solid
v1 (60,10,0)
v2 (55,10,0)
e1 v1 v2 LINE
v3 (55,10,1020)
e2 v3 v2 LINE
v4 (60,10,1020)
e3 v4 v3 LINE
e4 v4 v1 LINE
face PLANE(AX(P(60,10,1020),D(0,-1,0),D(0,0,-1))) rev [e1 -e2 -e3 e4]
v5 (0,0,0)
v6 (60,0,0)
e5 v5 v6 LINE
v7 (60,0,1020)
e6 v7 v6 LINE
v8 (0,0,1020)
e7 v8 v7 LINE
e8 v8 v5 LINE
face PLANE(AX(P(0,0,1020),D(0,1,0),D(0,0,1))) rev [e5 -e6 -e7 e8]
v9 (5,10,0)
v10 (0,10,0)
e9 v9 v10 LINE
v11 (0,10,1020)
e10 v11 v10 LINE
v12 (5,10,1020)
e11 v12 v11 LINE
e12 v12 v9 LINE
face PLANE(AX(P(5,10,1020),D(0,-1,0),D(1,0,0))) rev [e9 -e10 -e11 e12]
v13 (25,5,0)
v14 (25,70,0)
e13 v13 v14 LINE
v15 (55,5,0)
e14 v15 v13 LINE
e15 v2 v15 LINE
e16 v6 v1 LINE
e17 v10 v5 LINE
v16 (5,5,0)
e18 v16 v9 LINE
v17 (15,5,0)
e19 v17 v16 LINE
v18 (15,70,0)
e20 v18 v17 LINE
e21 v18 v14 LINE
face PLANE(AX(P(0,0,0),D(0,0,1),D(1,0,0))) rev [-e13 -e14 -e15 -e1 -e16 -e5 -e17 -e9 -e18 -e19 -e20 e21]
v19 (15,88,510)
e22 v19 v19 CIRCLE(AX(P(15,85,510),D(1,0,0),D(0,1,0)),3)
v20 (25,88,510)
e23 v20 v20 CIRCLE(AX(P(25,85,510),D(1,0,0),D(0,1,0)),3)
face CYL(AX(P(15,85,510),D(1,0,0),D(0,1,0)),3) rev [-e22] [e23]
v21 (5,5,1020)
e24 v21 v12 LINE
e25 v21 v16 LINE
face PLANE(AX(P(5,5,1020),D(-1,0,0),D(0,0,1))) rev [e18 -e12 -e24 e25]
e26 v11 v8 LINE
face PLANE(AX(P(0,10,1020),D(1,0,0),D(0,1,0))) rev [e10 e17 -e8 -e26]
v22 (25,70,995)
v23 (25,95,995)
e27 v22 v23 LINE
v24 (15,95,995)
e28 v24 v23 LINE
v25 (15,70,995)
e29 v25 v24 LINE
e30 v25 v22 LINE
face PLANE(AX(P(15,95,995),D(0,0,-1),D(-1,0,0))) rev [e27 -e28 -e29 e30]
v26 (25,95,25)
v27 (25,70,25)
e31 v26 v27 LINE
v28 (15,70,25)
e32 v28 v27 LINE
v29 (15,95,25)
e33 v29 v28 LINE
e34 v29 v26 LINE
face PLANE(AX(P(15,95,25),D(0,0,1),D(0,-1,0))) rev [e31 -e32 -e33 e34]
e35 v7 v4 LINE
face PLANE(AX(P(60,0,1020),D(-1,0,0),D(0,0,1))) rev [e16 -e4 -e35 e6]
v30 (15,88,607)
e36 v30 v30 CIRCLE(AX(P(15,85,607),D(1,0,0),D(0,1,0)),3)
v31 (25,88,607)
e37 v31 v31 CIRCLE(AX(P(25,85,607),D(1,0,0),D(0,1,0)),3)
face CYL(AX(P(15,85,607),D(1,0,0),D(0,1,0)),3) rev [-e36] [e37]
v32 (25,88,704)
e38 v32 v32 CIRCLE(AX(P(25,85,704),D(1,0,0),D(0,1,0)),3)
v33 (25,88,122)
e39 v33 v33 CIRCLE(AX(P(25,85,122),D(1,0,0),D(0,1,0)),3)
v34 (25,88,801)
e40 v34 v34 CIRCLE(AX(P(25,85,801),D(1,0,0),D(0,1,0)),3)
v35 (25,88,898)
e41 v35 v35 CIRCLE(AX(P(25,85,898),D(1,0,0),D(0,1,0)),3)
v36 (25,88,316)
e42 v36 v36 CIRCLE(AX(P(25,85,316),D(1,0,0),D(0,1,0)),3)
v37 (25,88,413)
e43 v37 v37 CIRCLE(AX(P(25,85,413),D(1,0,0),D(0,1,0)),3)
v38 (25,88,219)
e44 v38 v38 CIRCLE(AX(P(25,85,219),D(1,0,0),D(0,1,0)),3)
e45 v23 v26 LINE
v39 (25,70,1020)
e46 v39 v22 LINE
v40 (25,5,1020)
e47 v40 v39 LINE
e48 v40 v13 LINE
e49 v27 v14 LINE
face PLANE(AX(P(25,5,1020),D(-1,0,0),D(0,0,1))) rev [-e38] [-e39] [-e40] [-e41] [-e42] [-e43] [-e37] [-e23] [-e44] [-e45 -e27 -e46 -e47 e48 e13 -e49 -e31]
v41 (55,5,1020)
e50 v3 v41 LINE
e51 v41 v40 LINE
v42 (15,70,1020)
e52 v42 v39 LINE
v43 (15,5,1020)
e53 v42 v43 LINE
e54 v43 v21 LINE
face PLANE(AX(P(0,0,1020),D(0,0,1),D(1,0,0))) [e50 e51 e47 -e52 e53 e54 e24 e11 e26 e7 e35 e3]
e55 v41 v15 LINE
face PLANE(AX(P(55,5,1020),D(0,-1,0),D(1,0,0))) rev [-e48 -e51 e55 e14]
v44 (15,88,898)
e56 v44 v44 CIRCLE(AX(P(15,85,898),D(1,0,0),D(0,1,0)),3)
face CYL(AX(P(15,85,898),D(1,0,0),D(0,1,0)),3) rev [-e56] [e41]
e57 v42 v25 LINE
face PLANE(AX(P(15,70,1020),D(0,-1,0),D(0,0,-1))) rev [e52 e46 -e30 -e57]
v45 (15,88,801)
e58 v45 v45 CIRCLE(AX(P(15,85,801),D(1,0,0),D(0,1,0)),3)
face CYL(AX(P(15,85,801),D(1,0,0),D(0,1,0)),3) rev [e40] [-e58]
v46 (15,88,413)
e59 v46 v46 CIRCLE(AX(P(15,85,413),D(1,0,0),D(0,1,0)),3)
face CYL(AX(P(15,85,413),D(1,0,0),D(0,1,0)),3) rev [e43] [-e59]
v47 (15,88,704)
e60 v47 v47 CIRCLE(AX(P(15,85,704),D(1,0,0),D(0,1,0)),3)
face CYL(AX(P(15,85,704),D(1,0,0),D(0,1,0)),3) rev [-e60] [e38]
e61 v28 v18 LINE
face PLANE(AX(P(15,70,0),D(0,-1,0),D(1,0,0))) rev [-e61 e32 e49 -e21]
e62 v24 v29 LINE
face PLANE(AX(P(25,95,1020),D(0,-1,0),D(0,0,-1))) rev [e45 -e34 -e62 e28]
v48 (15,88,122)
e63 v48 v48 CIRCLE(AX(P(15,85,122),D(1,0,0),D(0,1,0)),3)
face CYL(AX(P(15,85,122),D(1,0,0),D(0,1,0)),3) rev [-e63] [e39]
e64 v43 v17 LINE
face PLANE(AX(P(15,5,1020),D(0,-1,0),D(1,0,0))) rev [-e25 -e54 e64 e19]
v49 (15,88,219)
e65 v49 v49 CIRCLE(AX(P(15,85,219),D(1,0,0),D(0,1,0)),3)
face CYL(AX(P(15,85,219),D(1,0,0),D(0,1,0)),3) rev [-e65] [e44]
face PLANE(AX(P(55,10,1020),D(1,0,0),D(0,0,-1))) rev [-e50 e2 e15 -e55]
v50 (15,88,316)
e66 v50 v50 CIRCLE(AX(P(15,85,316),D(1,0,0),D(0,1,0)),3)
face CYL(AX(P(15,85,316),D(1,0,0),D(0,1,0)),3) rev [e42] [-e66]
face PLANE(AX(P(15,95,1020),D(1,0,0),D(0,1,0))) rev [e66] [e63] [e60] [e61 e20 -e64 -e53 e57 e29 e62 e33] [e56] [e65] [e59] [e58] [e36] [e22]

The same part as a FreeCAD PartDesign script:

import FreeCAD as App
import Part
import Sketcher

V = App.Vector
Q = App.Units.Quantity


def add_polygon(sketch, points):
    """Adds a closed chain of lines whose ends are joined by coincident constraints."""
    first, n = sketch.GeometryCount, len(points)
    for a, b in zip(points, points[1:] + points[:1]):
        sketch.addGeometry(Part.LineSegment(App.Vector(*a, 0), App.Vector(*b, 0)), False)
    for i in range(n):
        sketch.addConstraint(Sketcher.Constraint("Coincident", first + i, 2, first + (i + 1) % n, 1))

doc = App.newDocument("Part")
body = doc.addObject("PartDesign::Body", "Body")

sketch1 = doc.addObject("Sketcher::SketchObject", "Sketch")
body.addObject(sketch1)
sketch1.AttachmentSupport = (doc.XY_Plane, [""])
sketch1.MapMode = "FlatFace"
add_polygon(sketch1, [(0, 10), (0, 0), (60, 0), (60, 10), (55, 10), (55, 5), (25, 5), (25, 95), (15, 95), (15, 5), (5, 5), (5, 10)])
sketch1.addConstraint(Sketcher.Constraint("Vertical", 0))
sketch1.addConstraint(Sketcher.Constraint("Horizontal", 1))
sketch1.addConstraint(Sketcher.Constraint("Vertical", 2))
sketch1.addConstraint(Sketcher.Constraint("Horizontal", 3))
sketch1.addConstraint(Sketcher.Constraint("Vertical", 4))
sketch1.addConstraint(Sketcher.Constraint("Horizontal", 5))
sketch1.addConstraint(Sketcher.Constraint("Vertical", 6))
sketch1.addConstraint(Sketcher.Constraint("Horizontal", 7))
sketch1.addConstraint(Sketcher.Constraint("Vertical", 8))
sketch1.addConstraint(Sketcher.Constraint("Horizontal", 9))
sketch1.addConstraint(Sketcher.Constraint("Vertical", 10))
sketch1.addConstraint(Sketcher.Constraint("Horizontal", 11))
sketch1.addConstraint(Sketcher.Constraint("Coincident", 0, 2, -1, 1))
sketch1.addConstraint(Sketcher.Constraint("Horizontal", 5, 2, 8, 2))
sketch1.addConstraint(Sketcher.Constraint("Horizontal", 3, 2, 10, 2))
sketch1.addConstraint(Sketcher.Constraint("Equal", 7, 9))
sketch1.addConstraint(Sketcher.Constraint("Equal", 3, 11))
sketch1.addConstraint(Sketcher.Constraint("Equal", 9, 0))
sketch1.addConstraint(Sketcher.Constraint("Equal", 11, 4))
sketch1.addConstraint(Sketcher.Constraint("DistanceX", 1, 1, 1, 2, Q("60 mm")))
sketch1.addConstraint(Sketcher.Constraint("DistanceX", 3, 2, 3, 1, Q("5 mm")))
sketch1.addConstraint(Sketcher.Constraint("DistanceX", 5, 2, 5, 1, Q("30 mm")))
sketch1.addConstraint(Sketcher.Constraint("DistanceY", 6, 1, 6, 2, Q("90 mm")))
pad1 = doc.addObject("PartDesign::Pad", "Pad")
body.addObject(pad1)
pad1.Profile = sketch1
pad1.Length = 1020

sketch2 = doc.addObject("Sketcher::SketchObject", "Sketch001")
body.addObject(sketch2)
sketch2.AttachmentSupport = (doc.YZ_Plane, [""])
sketch2.MapMode = "FlatFace"
sketch2.AttachmentOffset = App.Placement(V(0, 0, 25), App.Rotation())
add_polygon(sketch2, [(95, 1020), (70, 1020), (70, 995), (95, 995)])
add_polygon(sketch2, [(95, 25), (70, 25), (70, 0), (95, 0)])
sketch2.addConstraint(Sketcher.Constraint("Horizontal", 0))
sketch2.addConstraint(Sketcher.Constraint("Vertical", 1))
sketch2.addConstraint(Sketcher.Constraint("Horizontal", 2))
sketch2.addConstraint(Sketcher.Constraint("Vertical", 3))
sketch2.addConstraint(Sketcher.Constraint("Horizontal", 4))
sketch2.addConstraint(Sketcher.Constraint("Vertical", 5))
sketch2.addConstraint(Sketcher.Constraint("Horizontal", 6))
sketch2.addConstraint(Sketcher.Constraint("Vertical", 7))
sketch2.addConstraint(Sketcher.Constraint("PointOnObject", 5, 2, -1))
sketch2.addConstraint(Sketcher.Constraint("Vertical", 1, 2, 4, 2))
sketch2.addConstraint(Sketcher.Constraint("Vertical", 3, 2, 6, 2))
sketch2.addConstraint(Sketcher.Constraint("Equal", 6, 1))
sketch2.addConstraint(Sketcher.Constraint("Equal", 3, 5))
sketch2.addConstraint(Sketcher.Constraint("DistanceX", 0, 2, 0, 1, Q("25 mm")))
sketch2.addConstraint(Sketcher.Constraint("DistanceX", -1, 1, 0, 2, Q("70 mm")))
sketch2.addConstraint(Sketcher.Constraint("DistanceY", -1, 1, 0, 2, Q("1020 mm")))
pocket1 = doc.addObject("PartDesign::Pocket", "Pocket")
body.addObject(pocket1)
pocket1.Profile = sketch2
pocket1.Length = 10

sketch3 = doc.addObject("Sketcher::SketchObject", "Sketch002")
body.addObject(sketch3)
sketch3.AttachmentSupport = (doc.YZ_Plane, [""])
sketch3.MapMode = "FlatFace"
sketch3.AttachmentOffset = App.Placement(V(0, 0, 25), App.Rotation())
sketch3.addGeometry(Part.Circle(V(85, 898, 0), V(0, 0, 1), 3), False)
sketch3.addConstraint(Sketcher.Constraint("Diameter", 0, Q("6 mm")))
sketch3.addConstraint(Sketcher.Constraint("DistanceX", -1, 1, 0, 3, Q("85 mm")))
sketch3.addConstraint(Sketcher.Constraint("DistanceY", -1, 1, 0, 3, Q("898 mm")))
pocket2 = doc.addObject("PartDesign::Pocket", "Pocket001")
body.addObject(pocket2)
pocket2.Profile = sketch3
pocket2.Length = 10
doc.recompute()

linearpattern = doc.addObject("PartDesign::LinearPattern", "LinearPattern")
body.addObject(linearpattern)
linearpattern.Originals = [pocket2]
linearpattern.Direction = (doc.Z_Axis, [""])
linearpattern.Mode = "offset"
linearpattern.Offset = 97
linearpattern.Occurrences = 9
linearpattern.Reversed = True
body.Tip = linearpattern

doc.recompute()
